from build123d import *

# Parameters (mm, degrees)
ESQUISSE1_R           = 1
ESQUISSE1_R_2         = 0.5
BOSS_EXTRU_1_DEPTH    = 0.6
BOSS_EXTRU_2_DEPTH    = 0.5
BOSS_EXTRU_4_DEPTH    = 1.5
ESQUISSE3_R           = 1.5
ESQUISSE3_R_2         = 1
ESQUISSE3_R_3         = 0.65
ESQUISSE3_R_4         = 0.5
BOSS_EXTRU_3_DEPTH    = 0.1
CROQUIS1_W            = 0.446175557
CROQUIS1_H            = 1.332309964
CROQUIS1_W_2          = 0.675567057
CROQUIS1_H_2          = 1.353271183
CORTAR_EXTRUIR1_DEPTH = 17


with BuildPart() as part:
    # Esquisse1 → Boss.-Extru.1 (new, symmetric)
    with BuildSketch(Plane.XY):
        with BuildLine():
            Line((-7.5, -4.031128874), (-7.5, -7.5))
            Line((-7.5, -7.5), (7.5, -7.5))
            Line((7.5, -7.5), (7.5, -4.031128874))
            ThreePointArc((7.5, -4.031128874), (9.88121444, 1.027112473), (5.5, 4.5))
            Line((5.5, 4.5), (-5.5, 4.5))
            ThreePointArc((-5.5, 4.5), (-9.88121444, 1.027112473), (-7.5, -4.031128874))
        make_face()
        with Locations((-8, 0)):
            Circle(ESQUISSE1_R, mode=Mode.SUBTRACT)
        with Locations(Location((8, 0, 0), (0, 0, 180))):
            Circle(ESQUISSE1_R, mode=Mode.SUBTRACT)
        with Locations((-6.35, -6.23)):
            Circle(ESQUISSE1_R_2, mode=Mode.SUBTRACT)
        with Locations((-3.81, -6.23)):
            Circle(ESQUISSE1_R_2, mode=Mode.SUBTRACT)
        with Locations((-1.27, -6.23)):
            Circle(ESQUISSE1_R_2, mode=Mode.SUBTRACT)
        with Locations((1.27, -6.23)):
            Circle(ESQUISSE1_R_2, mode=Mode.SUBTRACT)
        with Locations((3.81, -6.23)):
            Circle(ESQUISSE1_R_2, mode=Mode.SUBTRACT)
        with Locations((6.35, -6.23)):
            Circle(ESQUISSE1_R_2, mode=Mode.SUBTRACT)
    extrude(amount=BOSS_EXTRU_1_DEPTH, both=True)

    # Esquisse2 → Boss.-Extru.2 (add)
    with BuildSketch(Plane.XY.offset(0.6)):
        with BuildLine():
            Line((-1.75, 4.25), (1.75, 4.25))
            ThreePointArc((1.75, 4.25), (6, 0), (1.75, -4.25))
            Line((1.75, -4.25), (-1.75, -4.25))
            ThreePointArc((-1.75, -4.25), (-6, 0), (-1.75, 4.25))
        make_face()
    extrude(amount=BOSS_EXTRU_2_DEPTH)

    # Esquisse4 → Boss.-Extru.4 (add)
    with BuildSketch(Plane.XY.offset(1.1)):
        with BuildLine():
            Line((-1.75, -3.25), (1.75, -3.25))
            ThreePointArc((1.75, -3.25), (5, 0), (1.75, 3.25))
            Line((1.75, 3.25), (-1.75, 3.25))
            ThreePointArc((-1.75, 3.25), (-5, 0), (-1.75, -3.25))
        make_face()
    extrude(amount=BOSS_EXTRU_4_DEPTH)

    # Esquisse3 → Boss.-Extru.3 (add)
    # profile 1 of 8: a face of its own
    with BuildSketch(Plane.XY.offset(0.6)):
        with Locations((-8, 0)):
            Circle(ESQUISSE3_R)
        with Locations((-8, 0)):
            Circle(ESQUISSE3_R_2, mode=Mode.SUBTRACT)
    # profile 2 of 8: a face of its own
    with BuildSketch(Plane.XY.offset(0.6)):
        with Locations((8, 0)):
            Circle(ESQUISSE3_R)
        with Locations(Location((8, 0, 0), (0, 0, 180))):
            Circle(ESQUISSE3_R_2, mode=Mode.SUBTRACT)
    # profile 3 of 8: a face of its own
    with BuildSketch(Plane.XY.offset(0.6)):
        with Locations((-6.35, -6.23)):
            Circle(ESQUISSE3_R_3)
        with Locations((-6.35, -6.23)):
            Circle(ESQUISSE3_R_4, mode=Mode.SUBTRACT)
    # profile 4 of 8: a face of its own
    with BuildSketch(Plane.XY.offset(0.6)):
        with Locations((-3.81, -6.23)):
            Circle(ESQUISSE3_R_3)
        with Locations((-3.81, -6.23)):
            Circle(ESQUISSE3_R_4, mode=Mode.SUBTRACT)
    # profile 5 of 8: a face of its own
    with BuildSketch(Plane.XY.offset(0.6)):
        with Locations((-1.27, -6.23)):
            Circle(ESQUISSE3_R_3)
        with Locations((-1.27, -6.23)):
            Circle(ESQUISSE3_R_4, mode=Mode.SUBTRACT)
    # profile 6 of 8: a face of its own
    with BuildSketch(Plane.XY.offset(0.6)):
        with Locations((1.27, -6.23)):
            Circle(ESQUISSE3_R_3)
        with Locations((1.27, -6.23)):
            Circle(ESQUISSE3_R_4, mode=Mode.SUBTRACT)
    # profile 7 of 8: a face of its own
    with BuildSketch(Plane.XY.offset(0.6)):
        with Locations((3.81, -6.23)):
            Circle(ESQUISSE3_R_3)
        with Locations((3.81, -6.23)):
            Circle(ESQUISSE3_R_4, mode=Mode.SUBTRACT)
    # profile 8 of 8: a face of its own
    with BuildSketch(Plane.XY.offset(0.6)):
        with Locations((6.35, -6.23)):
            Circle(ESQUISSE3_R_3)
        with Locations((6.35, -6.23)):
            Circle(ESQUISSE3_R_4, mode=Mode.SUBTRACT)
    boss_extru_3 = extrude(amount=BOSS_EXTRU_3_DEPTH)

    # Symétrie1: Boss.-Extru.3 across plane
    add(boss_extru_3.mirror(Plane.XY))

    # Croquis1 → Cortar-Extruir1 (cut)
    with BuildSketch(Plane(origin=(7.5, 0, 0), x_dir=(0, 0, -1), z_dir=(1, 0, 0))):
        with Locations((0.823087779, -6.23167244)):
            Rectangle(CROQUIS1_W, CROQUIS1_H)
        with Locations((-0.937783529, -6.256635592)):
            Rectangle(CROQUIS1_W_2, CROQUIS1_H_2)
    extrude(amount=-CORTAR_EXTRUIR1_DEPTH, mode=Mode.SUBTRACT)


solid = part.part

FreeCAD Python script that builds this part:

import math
import FreeCAD as App
import Part
import Sketcher

V = App.Vector
Q = App.Units.Quantity

doc = App.newDocument("Part")
body = doc.addObject("PartDesign::Body", "Body")

sketch1 = body.newObject("Sketcher::SketchObject", "Sketch")
sketch1.AttachmentSupport = (doc.getObject("XY_Plane"), [""])
sketch1.MapMode = "FlatFace"
sketch1.addGeometry(Part.LineSegment(V(-7.5, -4, 0), V(-7.5, -7.5, 0)), False)
sketch1.addGeometry(Part.LineSegment(V(-7.5, -7.5, 0), V(7.5, -7.5, 0)), False)
sketch1.addGeometry(Part.LineSegment(V(7.5, -7.5, 0), V(7.5, -4, 0)), False)
sketch1.addGeometry(Part.ArcOfCircle(Part.Circle(V(5.5, 0, 0), V(0, 0, 1), 4.5), math.radians(-64), math.radians(90)), False)
sketch1.addGeometry(Part.LineSegment(V(5.5, 4.5, 0), V(-5.5, 4.5, 0)), False)
sketch1.addGeometry(Part.ArcOfCircle(Part.Circle(V(-5.5, 0, 0), V(0, 0, 1), 4.5), math.radians(90), math.radians(244)), False)
sketch1.addGeometry(Part.Circle(V(-6.3, -6.2, 0), V(0, 0, 1), 0.5), False)
sketch1.addGeometry(Part.Circle(V(-3.8, -6.2, 0), V(0, 0, 1), 0.5), False)
sketch1.addGeometry(Part.Circle(V(-1.3, -6.2, 0), V(0, 0, 1), 0.5), False)
sketch1.addGeometry(Part.Circle(V(1.3, -6.2, 0), V(0, 0, 1), 0.5), False)
sketch1.addGeometry(Part.Circle(V(3.8, -6.2, 0), V(0, 0, 1), 0.5), False)
sketch1.addGeometry(Part.Circle(V(6.3, -6.2, 0), V(0, 0, 1), 0.5), False)
sketch1.addGeometry(Part.Circle(V(-8, 0, 0), V(0, 0, 1), 1), False)
sketch1.addGeometry(Part.Circle(V(8, 0, 0), V(0, 0, 1), 1), False)
sketch1.addConstraint(Sketcher.Constraint("Coincident", 0, 2, 1, 1))
sketch1.addConstraint(Sketcher.Constraint("Coincident", 1, 2, 2, 1))
sketch1.addConstraint(Sketcher.Constraint("Coincident", 2, 2, 3, 1))
sketch1.addConstraint(Sketcher.Constraint("Tangent", 3, 2, 4, 1))
sketch1.addConstraint(Sketcher.Constraint("Tangent", 4, 2, 5, 1))
sketch1.addConstraint(Sketcher.Constraint("Coincident", 5, 2, 0, 1))
sketch1.addConstraint(Sketcher.Constraint("Vertical", 0))
sketch1.addConstraint(Sketcher.Constraint("Horizontal", 1))
sketch1.addConstraint(Sketcher.Constraint("Vertical", 2))
sketch1.addConstraint(Sketcher.Constraint("Horizontal", 4))
sketch1.addConstraint(Sketcher.Constraint("Equal", 3, 5))
sketch1.addConstraint(Sketcher.Constraint("Equal", 6, 7))
sketch1.addConstraint(Sketcher.Constraint("Equal", 7, 8))
sketch1.addConstraint(Sketcher.Constraint("Equal", 8, 9))
sketch1.addConstraint(Sketcher.Constraint("Equal", 9, 10))
sketch1.addConstraint(Sketcher.Constraint("Equal", 10, 11))
sketch1.addConstraint(Sketcher.Constraint("Equal", 12, 13))
sketch1.addConstraint(Sketcher.Constraint("Symmetric", 3, 3, 5, 3, -1, 1))
sketch1.addConstraint(Sketcher.Constraint("Symmetric", 12, 3, 13, 3, -1, 1))
sketch1.addConstraint(Sketcher.Constraint("Symmetric", 8, 3, 9, 3, -2))
sketch1.addConstraint(Sketcher.Constraint("Symmetric", 7, 3, 10, 3, -2))
sketch1.addConstraint(Sketcher.Constraint("Symmetric", 6, 3, 11, 3, -2))
sketch1.addConstraint(Sketcher.Constraint("PointOnObject", 12, 3, -1))
sketch1.addConstraint(Sketcher.Constraint("Horizontal", 6, 3, 7, 3))
sketch1.addConstraint(Sketcher.Constraint("Horizontal", 7, 3, 8, 3))
sketch1.addConstraint(Sketcher.Constraint("Horizontal", 2, 2, 5, 2))
sketch1.addConstraint(Sketcher.Constraint("Diameter", 6, Q("1 mm")))
sketch1.addConstraint(Sketcher.Constraint("Diameter", 12, Q("2 mm")))
sketch1.addConstraint(Sketcher.Constraint("Radius", 3, Q("4.5 mm")))
sketch1.addConstraint(Sketcher.Constraint("DistanceX", 1, 1, 1, 2, Q("15 mm")))
sketch1.addConstraint(Sketcher.Constraint("DistanceX", 4, 2, 4, 1, Q("11 mm")))
sketch1.addConstraint(Sketcher.Constraint("DistanceX", 12, 3, -1, 1, Q("8 mm")))
sketch1.addConstraint(Sketcher.Constraint("DistanceY", 0, 2, -1, 1, Q("7.5 mm")))
sketch1.addConstraint(Sketcher.Constraint("DistanceX", 6, 3, -1, 1, Q("6.35 mm")))
sketch1.addConstraint(Sketcher.Constraint("DistanceY", 6, 3, -1, 1, Q("6.23 mm")))
sketch1.addConstraint(Sketcher.Constraint("DistanceX", 7, 3, -1, 1, Q("3.81 mm")))
sketch1.addConstraint(Sketcher.Constraint("DistanceX", 8, 3, -1, 1, Q("1.27 mm")))
pad1 = body.newObject("PartDesign::Pad", "Pad")
pad1.Profile = sketch1
pad1.Length = 1.2
pad1.Midplane = True

sketch2 = body.newObject("Sketcher::SketchObject", "Sketch001")
sketch2.AttachmentSupport = (doc.getObject("XY_Plane"), [""])
sketch2.MapMode = "FlatFace"
sketch2.AttachmentOffset = App.Placement(V(0, 0, 0.6), App.Rotation())
sketch2.addGeometry(Part.LineSegment(V(1.8, 4.2, 0), V(-1.8, 4.2, 0)), False)
sketch2.addGeometry(Part.ArcOfCircle(Part.Circle(V(-1.8, 0, 0), V(0, 0, 1), 4.2), math.radians(90), math.radians(270)), False)
sketch2.addGeometry(Part.LineSegment(V(-1.8, -4.2, 0), V(1.8, -4.2, 0)), False)
sketch2.addGeometry(Part.ArcOfCircle(Part.Circle(V(1.8, 0, 0), V(0, 0, 1), 4.2), math.radians(-90), math.radians(90)), False)
sketch2.addConstraint(Sketcher.Constraint("Tangent", 0, 2, 1, 1))
sketch2.addConstraint(Sketcher.Constraint("Tangent", 1, 2, 2, 1))
sketch2.addConstraint(Sketcher.Constraint("Tangent", 2, 2, 3, 1))
sketch2.addConstraint(Sketcher.Constraint("Tangent", 3, 2, 0, 1))
sketch2.addConstraint(Sketcher.Constraint("Horizontal", 0))
sketch2.addConstraint(Sketcher.Constraint("Horizontal", 2))
sketch2.addConstraint(Sketcher.Constraint("Symmetric", 1, 3, 3, 3, -1, 1))
sketch2.addConstraint(Sketcher.Constraint("Radius", 1, Q("4.25 mm")))
sketch2.addConstraint(Sketcher.Constraint("DistanceX", 0, 2, 0, 1, Q("3.5 mm")))
pad2 = body.newObject("PartDesign::Pad", "Pad001")
pad2.Profile = sketch2
pad2.Length = 0.5

sketch3 = body.newObject("Sketcher::SketchObject", "Sketch002")
sketch3.AttachmentSupport = (doc.getObject("XY_Plane"), [""])
sketch3.MapMode = "FlatFace"
sketch3.AttachmentOffset = App.Placement(V(0, 0, 1.1), App.Rotation())
sketch3.addGeometry(Part.LineSegment(V(-1.8, -3.2, 0), V(1.8, -3.2, 0)), False)
sketch3.addGeometry(Part.ArcOfCircle(Part.Circle(V(1.8, 0, 0), V(0, 0, 1), 3.2), math.radians(-90), math.radians(90)), False)
sketch3.addGeometry(Part.LineSegment(V(1.8, 3.2, 0), V(-1.8, 3.2, 0)), False)
sketch3.addGeometry(Part.ArcOfCircle(Part.Circle(V(-1.8, 0, 0), V(0, 0, 1), 3.2), math.radians(90), math.radians(270)), False)
sketch3.addConstraint(Sketcher.Constraint("Tangent", 0, 2, 1, 1))
sketch3.addConstraint(Sketcher.Constraint("Tangent", 1, 2, 2, 1))
sketch3.addConstraint(Sketcher.Constraint("Tangent", 2, 2, 3, 1))
sketch3.addConstraint(Sketcher.Constraint("Tangent", 3, 2, 0, 1))
sketch3.addConstraint(Sketcher.Constraint("Horizontal", 0))
sketch3.addConstraint(Sketcher.Constraint("Horizontal", 2))
sketch3.addConstraint(Sketcher.Constraint("Symmetric", 1, 3, 3, 3, -1, 1))
sketch3.addConstraint(Sketcher.Constraint("Radius", 1, Q("3.25 mm")))
sketch3.addConstraint(Sketcher.Constraint("DistanceX", 0, 1, 0, 2, Q("3.5 mm")))
pad3 = body.newObject("PartDesign::Pad", "Pad002")
pad3.Profile = sketch3
pad3.Length = 1.5

sketch4 = body.newObject("Sketcher::SketchObject", "Sketch003")
sketch4.AttachmentSupport = (doc.getObject("XY_Plane"), [""])
sketch4.MapMode = "FlatFace"
sketch4.AttachmentOffset = App.Placement(V(0, 0, 0.6), App.Rotation())
sketch4.addGeometry(Part.Circle(V(-8, 0, 0), V(0, 0, 1), 1.5), False)
sketch4.addGeometry(Part.Circle(V(-8, 0, 0), V(0, 0, 1), 1), False)
sketch4.addGeometry(Part.Circle(V(8, 0, 0), V(0, 0, 1), 1.5), False)
sketch4.addGeometry(Part.Circle(V(8, 0, 0), V(0, 0, 1), 1), False)
sketch4.addGeometry(Part.Circle(V(-6.3, -6.2, 0), V(0, 0, 1), 0.7), False)
sketch4.addGeometry(Part.Circle(V(-6.3, -6.2, 0), V(0, 0, 1), 0.5), False)
sketch4.addGeometry(Part.Circle(V(-3.8, -6.2, 0), V(0, 0, 1), 0.7), False)
sketch4.addGeometry(Part.Circle(V(-3.8, -6.2, 0), V(0, 0, 1), 0.5), False)
sketch4.addGeometry(Part.Circle(V(-1.3, -6.2, 0), V(0, 0, 1), 0.7), False)
sketch4.addGeometry(Part.Circle(V(-1.3, -6.2, 0), V(0, 0, 1), 0.5), False)
sketch4.addGeometry(Part.Circle(V(1.3, -6.2, 0), V(0, 0, 1), 0.7), False)
sketch4.addGeometry(Part.Circle(V(1.3, -6.2, 0), V(0, 0, 1), 0.5), False)
sketch4.addGeometry(Part.Circle(V(3.8, -6.2, 0), V(0, 0, 1), 0.7), False)
sketch4.addGeometry(Part.Circle(V(3.8, -6.2, 0), V(0, 0, 1), 0.5), False)
sketch4.addGeometry(Part.Circle(V(6.3, -6.2, 0), V(0, 0, 1), 0.7), False)
sketch4.addGeometry(Part.Circle(V(6.3, -6.2, 0), V(0, 0, 1), 0.5), False)
sketch4.addConstraint(Sketcher.Constraint("Coincident", 1, 3, 0, 3))
sketch4.addConstraint(Sketcher.Constraint("Coincident", 3, 3, 2, 3))
sketch4.addConstraint(Sketcher.Constraint("Coincident", 5, 3, 4, 3))
sketch4.addConstraint(Sketcher.Constraint("Coincident", 7, 3, 6, 3))
sketch4.addConstraint(Sketcher.Constraint("Coincident", 9, 3, 8, 3))
sketch4.addConstraint(Sketcher.Constraint("Coincident", 11, 3, 10, 3))
sketch4.addConstraint(Sketcher.Constraint("Coincident", 13, 3, 12, 3))
sketch4.addConstraint(Sketcher.Constraint("Coincident", 15, 3, 14, 3))
sketch4.addConstraint(Sketcher.Constraint("Equal", 0, 2))
sketch4.addConstraint(Sketcher.Constraint("Equal", 1, 3))
sketch4.addConstraint(Sketcher.Constraint("Equal", 4, 6))
sketch4.addConstraint(Sketcher.Constraint("Equal", 5, 7))
sketch4.addConstraint(Sketcher.Constraint("Equal", 6, 8))
sketch4.addConstraint(Sketcher.Constraint("Equal", 7, 9))
sketch4.addConstraint(Sketcher.Constraint("Equal", 8, 10))
sketch4.addConstraint(Sketcher.Constraint("Equal", 9, 11))
sketch4.addConstraint(Sketcher.Constraint("Equal", 10, 12))
sketch4.addConstraint(Sketcher.Constraint("Equal", 11, 13))
sketch4.addConstraint(Sketcher.Constraint("Equal", 12, 14))
sketch4.addConstraint(Sketcher.Constraint("Equal", 13, 15))
sketch4.addConstraint(Sketcher.Constraint("Symmetric", 0, 3, 2, 3, -1, 1))
sketch4.addConstraint(Sketcher.Constraint("Symmetric", 8, 3, 10, 3, -2))
sketch4.addConstraint(Sketcher.Constraint("Symmetric", 6, 3, 12, 3, -2))
sketch4.addConstraint(Sketcher.Constraint("Symmetric", 4, 3, 14, 3, -2))
sketch4.addConstraint(Sketcher.Constraint("PointOnObject", 0, 3, -1))
sketch4.addConstraint(Sketcher.Constraint("Horizontal", 5, 3, 6, 3))
sketch4.addConstraint(Sketcher.Constraint("Horizontal", 7, 3, 8, 3))
sketch4.addConstraint(Sketcher.Constraint("Diameter", 0, Q("3 mm")))
sketch4.addConstraint(Sketcher.Constraint("Diameter", 1, Q("2 mm")))
sketch4.addConstraint(Sketcher.Constraint("Diameter", 5, Q("1 mm")))
sketch4.addConstraint(Sketcher.Constraint("Diameter", 4, Q("1.3 mm")))
sketch4.addConstraint(Sketcher.Constraint("DistanceX", 0, 3, -1, 1, Q("8 mm")))
sketch4.addConstraint(Sketcher.Constraint("DistanceX", 4, 3, -1, 1, Q("6.35 mm")))
sketch4.addConstraint(Sketcher.Constraint("DistanceY", 4, 3, -1, 1, Q("6.23 mm")))
sketch4.addConstraint(Sketcher.Constraint("DistanceX", 6, 3, -1, 1, Q("3.81 mm")))
sketch4.addConstraint(Sketcher.Constraint("DistanceX", 8, 3, -1, 1, Q("1.27 mm")))
pad4 = body.newObject("PartDesign::Pad", "Pad003")
pad4.Profile = sketch4
pad4.Length = 0.1
doc.recompute()

mirrored = body.newObject("PartDesign::Mirrored", "Mirrored")
mirrored.Originals = [pad4]
mirrored.MirrorPlane = (doc.getObject("XY_Plane"), [""])
body.Tip = mirrored

sketch5 = body.newObject("Sketcher::SketchObject", "Sketch004")
sketch5.AttachmentSupport = (doc.getObject("YZ_Plane"), [""])
sketch5.MapMode = "FlatFace"
sketch5.AttachmentOffset = App.Placement(V(0, 0, 7.5), App.Rotation())
sketch5.addGeometry(Part.LineSegment(V(-5.57, -0.6, 0), V(-6.9, -0.6, 0)), False)
sketch5.addGeometry(Part.LineSegment(V(-6.9, -0.6, 0), V(-6.9, -1.05, 0)), False)
sketch5.addGeometry(Part.LineSegment(V(-6.9, -1.05, 0), V(-5.57, -1.05, 0)), False)
sketch5.addGeometry(Part.LineSegment(V(-5.57, -1.05, 0), V(-5.57, -0.6, 0)), False)
sketch5.addGeometry(Part.LineSegment(V(-5.58, 1.28, 0), V(-6.93, 1.28, 0)), False)
sketch5.addGeometry(Part.LineSegment(V(-6.93, 1.28, 0), V(-6.93, 0.6, 0)), False)
sketch5.addGeometry(Part.LineSegment(V(-6.93, 0.6, 0), V(-5.58, 0.6, 0)), False)
sketch5.addGeometry(Part.LineSegment(V(-5.58, 0.6, 0), V(-5.58, 1.28, 0)), False)
sketch5.addConstraint(Sketcher.Constraint("Coincident", 0, 2, 1, 1))
sketch5.addConstraint(Sketcher.Constraint("Coincident", 1, 2, 2, 1))
sketch5.addConstraint(Sketcher.Constraint("Coincident", 2, 2, 3, 1))
sketch5.addConstraint(Sketcher.Constraint("Coincident", 3, 2, 0, 1))
sketch5.addConstraint(Sketcher.Constraint("Coincident", 4, 2, 5, 1))
sketch5.addConstraint(Sketcher.Constraint("Coincident", 5, 2, 6, 1))
sketch5.addConstraint(Sketcher.Constraint("Coincident", 6, 2, 7, 1))
sketch5.addConstraint(Sketcher.Constraint("Coincident", 7, 2, 4, 1))
sketch5.addConstraint(Sketcher.Constraint("Horizontal", 0))
sketch5.addConstraint(Sketcher.Constraint("Vertical", 1))
sketch5.addConstraint(Sketcher.Constraint("Horizontal", 2))
sketch5.addConstraint(Sketcher.Constraint("Vertical", 3))
sketch5.addConstraint(Sketcher.Constraint("Horizontal", 4))
sketch5.addConstraint(Sketcher.Constraint("Vertical", 5))
sketch5.addConstraint(Sketcher.Constraint("Horizontal", 6))
sketch5.addConstraint(Sketcher.Constraint("Vertical", 7))
sketch5.addConstraint(Sketcher.Constraint("DistanceY", 0, 2, -1, 1, Q("0.6 mm")))
sketch5.addConstraint(Sketcher.Constraint("DistanceY", -1, 1, 5, 2, Q("0.6 mm")))
sketch5.addConstraint(Sketcher.Constraint("DistanceX", 6, 2, -1, 1, Q("5.58 mm")))
sketch5.addConstraint(Sketcher.Constraint("DistanceX", 0, 2, 0, 1, Q("1.33231 mm")))
sketch5.addConstraint(Sketcher.Constraint("DistanceX", 4, 2, 4, 1, Q("1.353271 mm")))
sketch5.addConstraint(Sketcher.Constraint("DistanceY", 1, 2, 1, 1, Q("0.446176 mm")))
sketch5.addConstraint(Sketcher.Constraint("DistanceY", 5, 2, 5, 1, Q("0.675567 mm")))
sketch5.addConstraint(Sketcher.Constraint("DistanceX", 0, 2, -1, 1, Q("6.897827 mm")))
pocket1 = body.newObject("PartDesign::Pocket", "Pocket")
pocket1.Profile = sketch5
pocket1.Length = 17

doc.recompute()
